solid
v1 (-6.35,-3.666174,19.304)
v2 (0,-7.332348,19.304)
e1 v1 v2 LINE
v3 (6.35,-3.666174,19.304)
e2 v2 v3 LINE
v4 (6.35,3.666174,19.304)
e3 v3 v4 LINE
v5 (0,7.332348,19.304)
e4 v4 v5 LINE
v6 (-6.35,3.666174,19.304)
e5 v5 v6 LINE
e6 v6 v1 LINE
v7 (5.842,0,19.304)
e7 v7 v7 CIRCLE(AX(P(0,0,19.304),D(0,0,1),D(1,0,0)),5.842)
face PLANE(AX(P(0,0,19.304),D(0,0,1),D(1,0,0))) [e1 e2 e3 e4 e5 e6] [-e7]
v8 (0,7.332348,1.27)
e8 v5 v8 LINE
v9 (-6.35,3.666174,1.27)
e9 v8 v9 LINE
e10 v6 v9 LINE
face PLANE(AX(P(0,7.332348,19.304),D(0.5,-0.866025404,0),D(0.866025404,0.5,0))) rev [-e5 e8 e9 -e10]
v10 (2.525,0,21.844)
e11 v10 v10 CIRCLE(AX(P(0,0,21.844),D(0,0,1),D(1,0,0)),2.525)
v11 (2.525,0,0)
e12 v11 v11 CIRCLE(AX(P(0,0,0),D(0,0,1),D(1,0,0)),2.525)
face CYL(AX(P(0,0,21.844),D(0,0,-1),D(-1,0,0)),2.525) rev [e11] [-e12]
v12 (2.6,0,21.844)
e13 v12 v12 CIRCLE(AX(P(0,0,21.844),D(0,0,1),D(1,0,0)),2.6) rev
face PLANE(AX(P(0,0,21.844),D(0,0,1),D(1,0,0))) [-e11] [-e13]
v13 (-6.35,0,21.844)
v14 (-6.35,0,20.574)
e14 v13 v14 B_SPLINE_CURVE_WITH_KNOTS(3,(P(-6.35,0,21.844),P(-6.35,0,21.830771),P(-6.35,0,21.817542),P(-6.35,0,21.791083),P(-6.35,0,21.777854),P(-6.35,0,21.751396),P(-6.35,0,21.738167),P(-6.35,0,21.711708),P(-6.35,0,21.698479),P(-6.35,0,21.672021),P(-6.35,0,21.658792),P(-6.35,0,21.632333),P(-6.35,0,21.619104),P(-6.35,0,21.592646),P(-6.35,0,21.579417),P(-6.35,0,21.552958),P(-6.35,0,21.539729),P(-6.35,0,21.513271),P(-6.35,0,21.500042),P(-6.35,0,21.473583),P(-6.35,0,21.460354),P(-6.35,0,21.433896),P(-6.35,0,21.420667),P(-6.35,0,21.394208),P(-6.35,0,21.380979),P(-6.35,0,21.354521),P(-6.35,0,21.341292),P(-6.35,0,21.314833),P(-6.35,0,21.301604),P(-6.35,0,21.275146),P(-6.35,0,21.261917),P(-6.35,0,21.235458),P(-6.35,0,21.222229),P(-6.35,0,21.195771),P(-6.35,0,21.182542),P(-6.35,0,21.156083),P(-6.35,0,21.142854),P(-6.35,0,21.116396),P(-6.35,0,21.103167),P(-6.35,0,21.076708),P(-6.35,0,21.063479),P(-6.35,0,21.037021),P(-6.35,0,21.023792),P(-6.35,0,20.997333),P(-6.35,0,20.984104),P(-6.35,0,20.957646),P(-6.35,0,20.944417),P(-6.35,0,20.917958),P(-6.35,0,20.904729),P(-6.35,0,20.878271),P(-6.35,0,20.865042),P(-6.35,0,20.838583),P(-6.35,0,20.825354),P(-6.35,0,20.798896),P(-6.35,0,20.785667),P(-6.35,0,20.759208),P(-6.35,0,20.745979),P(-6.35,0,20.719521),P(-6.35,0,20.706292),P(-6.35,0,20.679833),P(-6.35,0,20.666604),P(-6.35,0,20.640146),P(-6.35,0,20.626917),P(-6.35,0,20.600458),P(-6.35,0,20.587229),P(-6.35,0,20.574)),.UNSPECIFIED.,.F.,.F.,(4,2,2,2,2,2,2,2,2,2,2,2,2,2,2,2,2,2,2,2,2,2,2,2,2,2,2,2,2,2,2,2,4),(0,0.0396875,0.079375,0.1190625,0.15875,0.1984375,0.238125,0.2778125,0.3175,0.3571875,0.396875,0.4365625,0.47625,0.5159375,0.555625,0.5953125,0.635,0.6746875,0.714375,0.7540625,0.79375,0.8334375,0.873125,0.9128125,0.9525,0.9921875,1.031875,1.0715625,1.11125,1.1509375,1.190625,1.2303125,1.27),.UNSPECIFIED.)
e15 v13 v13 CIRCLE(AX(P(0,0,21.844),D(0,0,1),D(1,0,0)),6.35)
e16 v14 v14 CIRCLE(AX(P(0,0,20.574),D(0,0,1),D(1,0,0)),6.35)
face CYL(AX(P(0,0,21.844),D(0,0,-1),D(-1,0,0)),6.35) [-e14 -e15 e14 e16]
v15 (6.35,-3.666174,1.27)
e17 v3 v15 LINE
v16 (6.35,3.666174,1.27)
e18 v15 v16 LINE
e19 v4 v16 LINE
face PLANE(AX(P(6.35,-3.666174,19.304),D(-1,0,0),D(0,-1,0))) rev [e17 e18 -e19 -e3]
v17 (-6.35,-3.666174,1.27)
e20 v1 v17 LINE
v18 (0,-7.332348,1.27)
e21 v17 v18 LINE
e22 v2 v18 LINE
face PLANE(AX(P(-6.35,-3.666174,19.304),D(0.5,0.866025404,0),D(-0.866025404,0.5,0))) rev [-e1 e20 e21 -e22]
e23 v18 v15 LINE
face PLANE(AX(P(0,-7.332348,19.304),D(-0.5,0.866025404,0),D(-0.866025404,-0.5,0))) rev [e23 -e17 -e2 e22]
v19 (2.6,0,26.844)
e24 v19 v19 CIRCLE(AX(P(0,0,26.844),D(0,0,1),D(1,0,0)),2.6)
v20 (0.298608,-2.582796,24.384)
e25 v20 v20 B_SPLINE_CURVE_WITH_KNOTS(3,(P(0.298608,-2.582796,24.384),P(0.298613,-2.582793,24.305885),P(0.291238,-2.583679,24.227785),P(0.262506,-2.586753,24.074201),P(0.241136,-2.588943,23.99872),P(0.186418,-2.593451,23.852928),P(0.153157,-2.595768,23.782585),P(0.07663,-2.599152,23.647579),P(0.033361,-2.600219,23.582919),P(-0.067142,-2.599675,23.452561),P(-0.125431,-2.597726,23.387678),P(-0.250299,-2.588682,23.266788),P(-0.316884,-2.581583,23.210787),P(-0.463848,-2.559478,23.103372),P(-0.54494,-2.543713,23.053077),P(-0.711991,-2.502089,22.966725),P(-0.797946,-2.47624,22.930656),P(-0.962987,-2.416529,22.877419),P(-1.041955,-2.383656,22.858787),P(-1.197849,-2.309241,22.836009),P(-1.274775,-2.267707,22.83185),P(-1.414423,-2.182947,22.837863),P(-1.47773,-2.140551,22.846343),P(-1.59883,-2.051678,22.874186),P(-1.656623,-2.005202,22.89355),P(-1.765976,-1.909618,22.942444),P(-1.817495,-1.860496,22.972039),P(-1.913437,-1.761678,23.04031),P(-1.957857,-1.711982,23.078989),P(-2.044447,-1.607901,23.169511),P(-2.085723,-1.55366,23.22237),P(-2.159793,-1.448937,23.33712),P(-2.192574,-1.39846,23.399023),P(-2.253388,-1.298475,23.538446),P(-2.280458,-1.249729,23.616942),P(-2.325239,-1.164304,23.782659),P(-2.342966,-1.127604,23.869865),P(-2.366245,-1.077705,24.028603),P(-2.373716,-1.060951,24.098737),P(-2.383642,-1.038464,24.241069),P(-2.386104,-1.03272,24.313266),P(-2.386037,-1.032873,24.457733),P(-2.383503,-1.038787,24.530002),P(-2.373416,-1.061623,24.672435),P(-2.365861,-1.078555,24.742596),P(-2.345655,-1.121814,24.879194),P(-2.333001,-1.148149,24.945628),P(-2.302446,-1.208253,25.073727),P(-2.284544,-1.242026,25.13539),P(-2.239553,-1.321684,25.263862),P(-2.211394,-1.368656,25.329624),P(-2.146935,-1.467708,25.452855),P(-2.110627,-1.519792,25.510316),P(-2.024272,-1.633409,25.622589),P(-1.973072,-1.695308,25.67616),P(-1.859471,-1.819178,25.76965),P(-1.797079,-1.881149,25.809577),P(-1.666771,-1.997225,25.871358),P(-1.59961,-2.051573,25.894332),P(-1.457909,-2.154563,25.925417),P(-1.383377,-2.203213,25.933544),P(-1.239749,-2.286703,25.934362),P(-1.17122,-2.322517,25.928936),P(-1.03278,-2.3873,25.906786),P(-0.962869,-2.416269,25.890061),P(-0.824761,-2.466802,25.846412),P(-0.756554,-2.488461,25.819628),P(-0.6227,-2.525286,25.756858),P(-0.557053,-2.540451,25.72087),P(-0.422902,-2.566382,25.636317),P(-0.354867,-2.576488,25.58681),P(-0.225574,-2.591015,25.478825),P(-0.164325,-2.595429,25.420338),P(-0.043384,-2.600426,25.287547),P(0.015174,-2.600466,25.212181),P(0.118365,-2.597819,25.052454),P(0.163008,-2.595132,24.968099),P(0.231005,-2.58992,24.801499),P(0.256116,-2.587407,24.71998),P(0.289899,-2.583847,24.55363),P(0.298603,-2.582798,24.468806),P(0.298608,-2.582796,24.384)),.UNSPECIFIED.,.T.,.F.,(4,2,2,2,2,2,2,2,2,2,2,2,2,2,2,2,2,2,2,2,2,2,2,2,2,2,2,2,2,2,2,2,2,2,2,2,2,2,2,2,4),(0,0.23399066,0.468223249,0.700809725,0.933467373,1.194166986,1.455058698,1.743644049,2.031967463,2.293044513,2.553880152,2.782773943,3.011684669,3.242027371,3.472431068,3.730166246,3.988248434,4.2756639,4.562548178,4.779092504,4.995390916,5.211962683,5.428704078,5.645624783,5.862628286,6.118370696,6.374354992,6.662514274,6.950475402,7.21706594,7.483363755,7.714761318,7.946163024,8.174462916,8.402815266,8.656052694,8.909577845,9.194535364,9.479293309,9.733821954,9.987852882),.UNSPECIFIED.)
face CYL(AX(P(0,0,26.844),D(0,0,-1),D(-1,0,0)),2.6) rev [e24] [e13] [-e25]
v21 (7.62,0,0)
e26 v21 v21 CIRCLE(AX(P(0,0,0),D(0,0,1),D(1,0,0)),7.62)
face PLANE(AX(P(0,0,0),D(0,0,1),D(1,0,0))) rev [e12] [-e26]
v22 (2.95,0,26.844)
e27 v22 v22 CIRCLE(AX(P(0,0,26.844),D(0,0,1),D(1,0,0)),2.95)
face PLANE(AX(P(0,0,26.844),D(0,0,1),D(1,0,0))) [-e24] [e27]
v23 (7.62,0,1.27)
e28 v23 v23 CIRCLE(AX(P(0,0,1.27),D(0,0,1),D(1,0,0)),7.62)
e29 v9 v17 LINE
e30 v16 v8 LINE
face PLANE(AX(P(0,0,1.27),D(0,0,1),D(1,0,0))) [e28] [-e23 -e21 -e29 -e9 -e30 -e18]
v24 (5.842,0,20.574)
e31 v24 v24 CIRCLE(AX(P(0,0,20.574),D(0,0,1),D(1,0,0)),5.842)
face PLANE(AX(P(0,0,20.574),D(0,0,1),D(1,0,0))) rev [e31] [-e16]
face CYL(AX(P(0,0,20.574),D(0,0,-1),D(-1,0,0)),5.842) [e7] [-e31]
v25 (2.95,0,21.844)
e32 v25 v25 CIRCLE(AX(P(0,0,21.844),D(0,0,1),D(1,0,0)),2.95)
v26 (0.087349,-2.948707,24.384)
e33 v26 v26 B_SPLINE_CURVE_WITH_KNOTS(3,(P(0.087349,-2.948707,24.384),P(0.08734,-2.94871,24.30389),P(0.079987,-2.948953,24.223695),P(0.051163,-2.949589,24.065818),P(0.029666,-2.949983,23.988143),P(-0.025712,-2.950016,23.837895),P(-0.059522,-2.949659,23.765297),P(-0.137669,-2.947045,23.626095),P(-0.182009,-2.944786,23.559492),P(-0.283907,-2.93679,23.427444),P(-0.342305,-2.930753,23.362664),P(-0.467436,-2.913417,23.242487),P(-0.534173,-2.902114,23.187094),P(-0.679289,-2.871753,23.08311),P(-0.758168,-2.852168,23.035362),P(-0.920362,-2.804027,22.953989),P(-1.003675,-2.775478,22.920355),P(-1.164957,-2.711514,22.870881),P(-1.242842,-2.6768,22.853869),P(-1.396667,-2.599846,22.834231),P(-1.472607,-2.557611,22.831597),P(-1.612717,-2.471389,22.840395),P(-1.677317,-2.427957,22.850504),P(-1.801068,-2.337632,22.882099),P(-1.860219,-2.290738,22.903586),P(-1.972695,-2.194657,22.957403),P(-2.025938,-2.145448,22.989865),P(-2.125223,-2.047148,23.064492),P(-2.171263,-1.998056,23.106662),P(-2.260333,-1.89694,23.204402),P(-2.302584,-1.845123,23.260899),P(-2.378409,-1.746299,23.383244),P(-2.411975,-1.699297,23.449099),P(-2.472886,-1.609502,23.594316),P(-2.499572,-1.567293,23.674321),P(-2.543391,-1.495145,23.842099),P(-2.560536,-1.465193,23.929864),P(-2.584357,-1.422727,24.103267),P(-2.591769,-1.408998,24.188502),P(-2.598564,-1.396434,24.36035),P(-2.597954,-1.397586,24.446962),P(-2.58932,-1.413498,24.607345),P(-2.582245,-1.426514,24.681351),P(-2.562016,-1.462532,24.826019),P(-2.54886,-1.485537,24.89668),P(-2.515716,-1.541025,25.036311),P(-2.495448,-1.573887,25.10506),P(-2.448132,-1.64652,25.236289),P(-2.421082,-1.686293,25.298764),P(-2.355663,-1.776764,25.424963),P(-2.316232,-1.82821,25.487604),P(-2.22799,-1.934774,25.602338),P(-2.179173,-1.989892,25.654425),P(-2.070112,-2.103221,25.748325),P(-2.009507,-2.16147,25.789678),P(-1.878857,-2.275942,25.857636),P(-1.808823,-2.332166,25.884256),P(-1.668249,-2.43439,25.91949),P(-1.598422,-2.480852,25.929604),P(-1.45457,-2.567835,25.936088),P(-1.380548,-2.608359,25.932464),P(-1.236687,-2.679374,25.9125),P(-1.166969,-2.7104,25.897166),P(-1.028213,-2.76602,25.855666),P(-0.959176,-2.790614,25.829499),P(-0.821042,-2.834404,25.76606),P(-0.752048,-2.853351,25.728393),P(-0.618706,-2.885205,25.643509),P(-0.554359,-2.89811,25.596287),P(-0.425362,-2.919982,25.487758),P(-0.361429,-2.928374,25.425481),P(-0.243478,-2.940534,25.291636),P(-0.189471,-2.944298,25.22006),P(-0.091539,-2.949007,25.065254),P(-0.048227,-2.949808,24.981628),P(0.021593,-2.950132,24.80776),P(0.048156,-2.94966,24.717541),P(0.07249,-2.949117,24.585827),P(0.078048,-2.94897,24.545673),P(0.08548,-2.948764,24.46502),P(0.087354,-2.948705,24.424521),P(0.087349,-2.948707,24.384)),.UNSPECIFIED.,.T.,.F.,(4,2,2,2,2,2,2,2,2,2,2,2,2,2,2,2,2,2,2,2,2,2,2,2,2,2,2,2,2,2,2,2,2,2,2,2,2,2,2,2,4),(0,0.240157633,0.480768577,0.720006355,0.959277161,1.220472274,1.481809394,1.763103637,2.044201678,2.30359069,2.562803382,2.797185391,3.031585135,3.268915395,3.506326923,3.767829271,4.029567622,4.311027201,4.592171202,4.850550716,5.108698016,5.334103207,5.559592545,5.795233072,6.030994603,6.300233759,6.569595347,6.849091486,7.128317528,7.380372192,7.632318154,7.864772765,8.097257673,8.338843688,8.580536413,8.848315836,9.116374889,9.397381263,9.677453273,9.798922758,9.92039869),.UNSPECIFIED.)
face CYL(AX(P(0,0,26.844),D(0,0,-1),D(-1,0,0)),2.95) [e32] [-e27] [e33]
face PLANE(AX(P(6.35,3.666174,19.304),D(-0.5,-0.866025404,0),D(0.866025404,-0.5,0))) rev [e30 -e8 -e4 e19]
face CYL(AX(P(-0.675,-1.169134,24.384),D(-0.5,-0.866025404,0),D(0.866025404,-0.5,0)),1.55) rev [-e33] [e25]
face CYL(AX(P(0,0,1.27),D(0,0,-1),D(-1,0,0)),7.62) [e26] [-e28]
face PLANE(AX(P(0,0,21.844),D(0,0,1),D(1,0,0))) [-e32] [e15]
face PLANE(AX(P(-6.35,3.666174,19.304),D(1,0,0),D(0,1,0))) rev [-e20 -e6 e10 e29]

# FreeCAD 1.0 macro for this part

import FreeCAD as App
import Part
import Sketcher

V = App.Vector
Q = App.Units.Quantity


def add_polygon(sketch, points):
    """Adds a closed chain of lines whose ends are joined by coincident constraints."""
    first, n = sketch.GeometryCount, len(points)
    for a, b in zip(points, points[1:] + points[:1]):
        sketch.addGeometry(Part.LineSegment(App.Vector(*a, 0), App.Vector(*b, 0)), False)
    for i in range(n):
        sketch.addConstraint(Sketcher.Constraint("Coincident", first + i, 2, first + (i + 1) % n, 1))

doc = App.newDocument("Part")
body = doc.addObject("PartDesign::Body", "Body")

sketch1 = body.newObject("Sketcher::SketchObject", "Sketch")
sketch1.AttachmentSupport = (doc.getObject("XY_Plane"), [""])
sketch1.MapMode = "FlatFace"
add_polygon(sketch1, [(0, 7), (-6, 4), (-6, -4), (0, -7), (6, -4), (6, 4)])
sketch1.addConstraint([
    Sketcher.Constraint("Vertical", 1),
    Sketcher.Constraint("Vertical", 4),
    Sketcher.Constraint("Symmetric", 0, 2, 3, 2, -1, 1),
    Sketcher.Constraint("Symmetric", 2, 2, 5, 2, -1, 1),
    Sketcher.Constraint("PointOnObject", 2, 2, -2),
    Sketcher.Constraint("Parallel", 2, 5),
    Sketcher.Constraint("Horizontal", 1, 2, 3, 2),
    Sketcher.Constraint("Angle", 0, Q("-150 deg")),
    Sketcher.Constraint("DistanceX", 1, 2, 3, 2, Q("0.5 in")),
    Sketcher.Constraint("DistanceY", 1, 2, 1, 1, 7.332348),
])
pad1 = body.newObject("PartDesign::Pad", "Pad")
pad1.Profile = sketch1
pad1.Length = Q("0.76 in")

sketch2 = body.newObject("Sketcher::SketchObject", "Sketch001")
sketch2.AttachmentSupport = (doc.getObject("XY_Plane"), [""])
sketch2.MapMode = "FlatFace"
sketch2.addGeometry(Part.Circle(V(0, 0, 0), V(0, 0, 1), 8), False)
sketch2.addConstraint([
    Sketcher.Constraint("Coincident", 0, 3, -1, 1),
    Sketcher.Constraint("Diameter", 0, Q("0.6 in")),
])
pad2 = body.newObject("PartDesign::Pad", "Pad001")
pad2.Profile = sketch2
pad2.Length = Q("0.05 in")

sketch3 = body.newObject("Sketcher::SketchObject", "Sketch002")
sketch3.AttachmentSupport = (doc.getObject("XY_Plane"), [""])
sketch3.MapMode = "FlatFace"
sketch3.AttachmentOffset = App.Placement(V(0, 0, 0.76 * 25.4), App.Rotation())
sketch3.addGeometry(Part.Circle(V(0, 0, 0), V(0, 0, 1), 6), False)
sketch3.addConstraint([
    Sketcher.Constraint("Coincident", 0, 3, -1, 1),
    Sketcher.Constraint("Diameter", 0, Q("0.46 in")),
])
pad3 = body.newObject("PartDesign::Pad", "Pad002")
pad3.Profile = sketch3
pad3.Length = Q("0.05 in")

sketch4 = body.newObject("Sketcher::SketchObject", "Sketch003")
sketch4.AttachmentSupport = (doc.getObject("XY_Plane"), [""])
sketch4.MapMode = "FlatFace"
sketch4.AttachmentOffset = App.Placement(V(0, 0, 0.81 * 25.4), App.Rotation())
sketch4.addGeometry(Part.Circle(V(0, 0, 0), V(0, 0, 1), 6), False)
sketch4.addConstraint([
    Sketcher.Constraint("Coincident", 0, 3, -1, 1),
    Sketcher.Constraint("Diameter", 0, Q("0.5 in")),
])
pad4 = body.newObject("PartDesign::Pad", "Pad003")
pad4.Profile = sketch4
pad4.Length = Q("0.05 in")

sketch5 = body.newObject("Sketcher::SketchObject", "Sketch004")
sketch5.AttachmentSupport = (doc.getObject("XY_Plane"), [""])
sketch5.MapMode = "FlatFace"
sketch5.addGeometry(Part.Circle(V(0, 0, 0), V(0, 0, 1), 2.5), False)
sketch5.addConstraint([
    Sketcher.Constraint("Coincident", 0, 3, -1, 1),
    Sketcher.Constraint("Diameter", 0, 5.05),
])
pocket1 = body.newObject("PartDesign::Pocket", "Pocket")
pocket1.Profile = sketch5
pocket1.Type = "ThroughAll"
pocket1.Reversed = True

sketch6 = body.newObject("Sketcher::SketchObject", "Sketch005")
sketch6.AttachmentSupport = (doc.getObject("XY_Plane"), [""])
sketch6.MapMode = "FlatFace"
sketch6.AttachmentOffset = App.Placement(V(0, 0, 0.86 * 25.4), App.Rotation())
sketch6.addGeometry([
    Part.Circle(V(0, 0, 0), V(0, 0, 1), 3),
    Part.Circle(V(0, 0, 0), V(0, 0, 1), 2.6),
], False)
sketch6.addConstraint([
    Sketcher.Constraint("Coincident", 0, 3, -1, 1),
    Sketcher.Constraint("Coincident", 1, 3, -1, 1),
    Sketcher.Constraint("Diameter", 0, 5.9),
    Sketcher.Constraint("Diameter", 1, 5.2),
])
pad5 = body.newObject("PartDesign::Pad", "Pad004")
pad5.Profile = sketch6
pad5.Length = 5

sketch7 = body.newObject("Sketcher::SketchObject", "Sketch006")
sketch7.Placement = App.Placement(V(-3.175, -5.499261, 0), App.Rotation(V(0.866025404, -0.5, 0), V(0, 0, 1), V(-0.5, -0.866025404, 0), "ZXY"))
sketch7.addGeometry(Part.Circle(V(0, 24.4, 0), V(0, 0, 1), 1.6), False)
sketch7.addConstraint([
    Sketcher.Constraint("PointOnObject", 0, 3, -2),
    Sketcher.Constraint("Diameter", 0, 3.1),
    Sketcher.Constraint("DistanceY", -1, 1, 0, 3, Q("0.96 in")),
])
pocket2 = body.newObject("PartDesign::Pocket", "Pocket001")
pocket2.Profile = sketch7
pocket2.Length = 5

doc.recompute()
